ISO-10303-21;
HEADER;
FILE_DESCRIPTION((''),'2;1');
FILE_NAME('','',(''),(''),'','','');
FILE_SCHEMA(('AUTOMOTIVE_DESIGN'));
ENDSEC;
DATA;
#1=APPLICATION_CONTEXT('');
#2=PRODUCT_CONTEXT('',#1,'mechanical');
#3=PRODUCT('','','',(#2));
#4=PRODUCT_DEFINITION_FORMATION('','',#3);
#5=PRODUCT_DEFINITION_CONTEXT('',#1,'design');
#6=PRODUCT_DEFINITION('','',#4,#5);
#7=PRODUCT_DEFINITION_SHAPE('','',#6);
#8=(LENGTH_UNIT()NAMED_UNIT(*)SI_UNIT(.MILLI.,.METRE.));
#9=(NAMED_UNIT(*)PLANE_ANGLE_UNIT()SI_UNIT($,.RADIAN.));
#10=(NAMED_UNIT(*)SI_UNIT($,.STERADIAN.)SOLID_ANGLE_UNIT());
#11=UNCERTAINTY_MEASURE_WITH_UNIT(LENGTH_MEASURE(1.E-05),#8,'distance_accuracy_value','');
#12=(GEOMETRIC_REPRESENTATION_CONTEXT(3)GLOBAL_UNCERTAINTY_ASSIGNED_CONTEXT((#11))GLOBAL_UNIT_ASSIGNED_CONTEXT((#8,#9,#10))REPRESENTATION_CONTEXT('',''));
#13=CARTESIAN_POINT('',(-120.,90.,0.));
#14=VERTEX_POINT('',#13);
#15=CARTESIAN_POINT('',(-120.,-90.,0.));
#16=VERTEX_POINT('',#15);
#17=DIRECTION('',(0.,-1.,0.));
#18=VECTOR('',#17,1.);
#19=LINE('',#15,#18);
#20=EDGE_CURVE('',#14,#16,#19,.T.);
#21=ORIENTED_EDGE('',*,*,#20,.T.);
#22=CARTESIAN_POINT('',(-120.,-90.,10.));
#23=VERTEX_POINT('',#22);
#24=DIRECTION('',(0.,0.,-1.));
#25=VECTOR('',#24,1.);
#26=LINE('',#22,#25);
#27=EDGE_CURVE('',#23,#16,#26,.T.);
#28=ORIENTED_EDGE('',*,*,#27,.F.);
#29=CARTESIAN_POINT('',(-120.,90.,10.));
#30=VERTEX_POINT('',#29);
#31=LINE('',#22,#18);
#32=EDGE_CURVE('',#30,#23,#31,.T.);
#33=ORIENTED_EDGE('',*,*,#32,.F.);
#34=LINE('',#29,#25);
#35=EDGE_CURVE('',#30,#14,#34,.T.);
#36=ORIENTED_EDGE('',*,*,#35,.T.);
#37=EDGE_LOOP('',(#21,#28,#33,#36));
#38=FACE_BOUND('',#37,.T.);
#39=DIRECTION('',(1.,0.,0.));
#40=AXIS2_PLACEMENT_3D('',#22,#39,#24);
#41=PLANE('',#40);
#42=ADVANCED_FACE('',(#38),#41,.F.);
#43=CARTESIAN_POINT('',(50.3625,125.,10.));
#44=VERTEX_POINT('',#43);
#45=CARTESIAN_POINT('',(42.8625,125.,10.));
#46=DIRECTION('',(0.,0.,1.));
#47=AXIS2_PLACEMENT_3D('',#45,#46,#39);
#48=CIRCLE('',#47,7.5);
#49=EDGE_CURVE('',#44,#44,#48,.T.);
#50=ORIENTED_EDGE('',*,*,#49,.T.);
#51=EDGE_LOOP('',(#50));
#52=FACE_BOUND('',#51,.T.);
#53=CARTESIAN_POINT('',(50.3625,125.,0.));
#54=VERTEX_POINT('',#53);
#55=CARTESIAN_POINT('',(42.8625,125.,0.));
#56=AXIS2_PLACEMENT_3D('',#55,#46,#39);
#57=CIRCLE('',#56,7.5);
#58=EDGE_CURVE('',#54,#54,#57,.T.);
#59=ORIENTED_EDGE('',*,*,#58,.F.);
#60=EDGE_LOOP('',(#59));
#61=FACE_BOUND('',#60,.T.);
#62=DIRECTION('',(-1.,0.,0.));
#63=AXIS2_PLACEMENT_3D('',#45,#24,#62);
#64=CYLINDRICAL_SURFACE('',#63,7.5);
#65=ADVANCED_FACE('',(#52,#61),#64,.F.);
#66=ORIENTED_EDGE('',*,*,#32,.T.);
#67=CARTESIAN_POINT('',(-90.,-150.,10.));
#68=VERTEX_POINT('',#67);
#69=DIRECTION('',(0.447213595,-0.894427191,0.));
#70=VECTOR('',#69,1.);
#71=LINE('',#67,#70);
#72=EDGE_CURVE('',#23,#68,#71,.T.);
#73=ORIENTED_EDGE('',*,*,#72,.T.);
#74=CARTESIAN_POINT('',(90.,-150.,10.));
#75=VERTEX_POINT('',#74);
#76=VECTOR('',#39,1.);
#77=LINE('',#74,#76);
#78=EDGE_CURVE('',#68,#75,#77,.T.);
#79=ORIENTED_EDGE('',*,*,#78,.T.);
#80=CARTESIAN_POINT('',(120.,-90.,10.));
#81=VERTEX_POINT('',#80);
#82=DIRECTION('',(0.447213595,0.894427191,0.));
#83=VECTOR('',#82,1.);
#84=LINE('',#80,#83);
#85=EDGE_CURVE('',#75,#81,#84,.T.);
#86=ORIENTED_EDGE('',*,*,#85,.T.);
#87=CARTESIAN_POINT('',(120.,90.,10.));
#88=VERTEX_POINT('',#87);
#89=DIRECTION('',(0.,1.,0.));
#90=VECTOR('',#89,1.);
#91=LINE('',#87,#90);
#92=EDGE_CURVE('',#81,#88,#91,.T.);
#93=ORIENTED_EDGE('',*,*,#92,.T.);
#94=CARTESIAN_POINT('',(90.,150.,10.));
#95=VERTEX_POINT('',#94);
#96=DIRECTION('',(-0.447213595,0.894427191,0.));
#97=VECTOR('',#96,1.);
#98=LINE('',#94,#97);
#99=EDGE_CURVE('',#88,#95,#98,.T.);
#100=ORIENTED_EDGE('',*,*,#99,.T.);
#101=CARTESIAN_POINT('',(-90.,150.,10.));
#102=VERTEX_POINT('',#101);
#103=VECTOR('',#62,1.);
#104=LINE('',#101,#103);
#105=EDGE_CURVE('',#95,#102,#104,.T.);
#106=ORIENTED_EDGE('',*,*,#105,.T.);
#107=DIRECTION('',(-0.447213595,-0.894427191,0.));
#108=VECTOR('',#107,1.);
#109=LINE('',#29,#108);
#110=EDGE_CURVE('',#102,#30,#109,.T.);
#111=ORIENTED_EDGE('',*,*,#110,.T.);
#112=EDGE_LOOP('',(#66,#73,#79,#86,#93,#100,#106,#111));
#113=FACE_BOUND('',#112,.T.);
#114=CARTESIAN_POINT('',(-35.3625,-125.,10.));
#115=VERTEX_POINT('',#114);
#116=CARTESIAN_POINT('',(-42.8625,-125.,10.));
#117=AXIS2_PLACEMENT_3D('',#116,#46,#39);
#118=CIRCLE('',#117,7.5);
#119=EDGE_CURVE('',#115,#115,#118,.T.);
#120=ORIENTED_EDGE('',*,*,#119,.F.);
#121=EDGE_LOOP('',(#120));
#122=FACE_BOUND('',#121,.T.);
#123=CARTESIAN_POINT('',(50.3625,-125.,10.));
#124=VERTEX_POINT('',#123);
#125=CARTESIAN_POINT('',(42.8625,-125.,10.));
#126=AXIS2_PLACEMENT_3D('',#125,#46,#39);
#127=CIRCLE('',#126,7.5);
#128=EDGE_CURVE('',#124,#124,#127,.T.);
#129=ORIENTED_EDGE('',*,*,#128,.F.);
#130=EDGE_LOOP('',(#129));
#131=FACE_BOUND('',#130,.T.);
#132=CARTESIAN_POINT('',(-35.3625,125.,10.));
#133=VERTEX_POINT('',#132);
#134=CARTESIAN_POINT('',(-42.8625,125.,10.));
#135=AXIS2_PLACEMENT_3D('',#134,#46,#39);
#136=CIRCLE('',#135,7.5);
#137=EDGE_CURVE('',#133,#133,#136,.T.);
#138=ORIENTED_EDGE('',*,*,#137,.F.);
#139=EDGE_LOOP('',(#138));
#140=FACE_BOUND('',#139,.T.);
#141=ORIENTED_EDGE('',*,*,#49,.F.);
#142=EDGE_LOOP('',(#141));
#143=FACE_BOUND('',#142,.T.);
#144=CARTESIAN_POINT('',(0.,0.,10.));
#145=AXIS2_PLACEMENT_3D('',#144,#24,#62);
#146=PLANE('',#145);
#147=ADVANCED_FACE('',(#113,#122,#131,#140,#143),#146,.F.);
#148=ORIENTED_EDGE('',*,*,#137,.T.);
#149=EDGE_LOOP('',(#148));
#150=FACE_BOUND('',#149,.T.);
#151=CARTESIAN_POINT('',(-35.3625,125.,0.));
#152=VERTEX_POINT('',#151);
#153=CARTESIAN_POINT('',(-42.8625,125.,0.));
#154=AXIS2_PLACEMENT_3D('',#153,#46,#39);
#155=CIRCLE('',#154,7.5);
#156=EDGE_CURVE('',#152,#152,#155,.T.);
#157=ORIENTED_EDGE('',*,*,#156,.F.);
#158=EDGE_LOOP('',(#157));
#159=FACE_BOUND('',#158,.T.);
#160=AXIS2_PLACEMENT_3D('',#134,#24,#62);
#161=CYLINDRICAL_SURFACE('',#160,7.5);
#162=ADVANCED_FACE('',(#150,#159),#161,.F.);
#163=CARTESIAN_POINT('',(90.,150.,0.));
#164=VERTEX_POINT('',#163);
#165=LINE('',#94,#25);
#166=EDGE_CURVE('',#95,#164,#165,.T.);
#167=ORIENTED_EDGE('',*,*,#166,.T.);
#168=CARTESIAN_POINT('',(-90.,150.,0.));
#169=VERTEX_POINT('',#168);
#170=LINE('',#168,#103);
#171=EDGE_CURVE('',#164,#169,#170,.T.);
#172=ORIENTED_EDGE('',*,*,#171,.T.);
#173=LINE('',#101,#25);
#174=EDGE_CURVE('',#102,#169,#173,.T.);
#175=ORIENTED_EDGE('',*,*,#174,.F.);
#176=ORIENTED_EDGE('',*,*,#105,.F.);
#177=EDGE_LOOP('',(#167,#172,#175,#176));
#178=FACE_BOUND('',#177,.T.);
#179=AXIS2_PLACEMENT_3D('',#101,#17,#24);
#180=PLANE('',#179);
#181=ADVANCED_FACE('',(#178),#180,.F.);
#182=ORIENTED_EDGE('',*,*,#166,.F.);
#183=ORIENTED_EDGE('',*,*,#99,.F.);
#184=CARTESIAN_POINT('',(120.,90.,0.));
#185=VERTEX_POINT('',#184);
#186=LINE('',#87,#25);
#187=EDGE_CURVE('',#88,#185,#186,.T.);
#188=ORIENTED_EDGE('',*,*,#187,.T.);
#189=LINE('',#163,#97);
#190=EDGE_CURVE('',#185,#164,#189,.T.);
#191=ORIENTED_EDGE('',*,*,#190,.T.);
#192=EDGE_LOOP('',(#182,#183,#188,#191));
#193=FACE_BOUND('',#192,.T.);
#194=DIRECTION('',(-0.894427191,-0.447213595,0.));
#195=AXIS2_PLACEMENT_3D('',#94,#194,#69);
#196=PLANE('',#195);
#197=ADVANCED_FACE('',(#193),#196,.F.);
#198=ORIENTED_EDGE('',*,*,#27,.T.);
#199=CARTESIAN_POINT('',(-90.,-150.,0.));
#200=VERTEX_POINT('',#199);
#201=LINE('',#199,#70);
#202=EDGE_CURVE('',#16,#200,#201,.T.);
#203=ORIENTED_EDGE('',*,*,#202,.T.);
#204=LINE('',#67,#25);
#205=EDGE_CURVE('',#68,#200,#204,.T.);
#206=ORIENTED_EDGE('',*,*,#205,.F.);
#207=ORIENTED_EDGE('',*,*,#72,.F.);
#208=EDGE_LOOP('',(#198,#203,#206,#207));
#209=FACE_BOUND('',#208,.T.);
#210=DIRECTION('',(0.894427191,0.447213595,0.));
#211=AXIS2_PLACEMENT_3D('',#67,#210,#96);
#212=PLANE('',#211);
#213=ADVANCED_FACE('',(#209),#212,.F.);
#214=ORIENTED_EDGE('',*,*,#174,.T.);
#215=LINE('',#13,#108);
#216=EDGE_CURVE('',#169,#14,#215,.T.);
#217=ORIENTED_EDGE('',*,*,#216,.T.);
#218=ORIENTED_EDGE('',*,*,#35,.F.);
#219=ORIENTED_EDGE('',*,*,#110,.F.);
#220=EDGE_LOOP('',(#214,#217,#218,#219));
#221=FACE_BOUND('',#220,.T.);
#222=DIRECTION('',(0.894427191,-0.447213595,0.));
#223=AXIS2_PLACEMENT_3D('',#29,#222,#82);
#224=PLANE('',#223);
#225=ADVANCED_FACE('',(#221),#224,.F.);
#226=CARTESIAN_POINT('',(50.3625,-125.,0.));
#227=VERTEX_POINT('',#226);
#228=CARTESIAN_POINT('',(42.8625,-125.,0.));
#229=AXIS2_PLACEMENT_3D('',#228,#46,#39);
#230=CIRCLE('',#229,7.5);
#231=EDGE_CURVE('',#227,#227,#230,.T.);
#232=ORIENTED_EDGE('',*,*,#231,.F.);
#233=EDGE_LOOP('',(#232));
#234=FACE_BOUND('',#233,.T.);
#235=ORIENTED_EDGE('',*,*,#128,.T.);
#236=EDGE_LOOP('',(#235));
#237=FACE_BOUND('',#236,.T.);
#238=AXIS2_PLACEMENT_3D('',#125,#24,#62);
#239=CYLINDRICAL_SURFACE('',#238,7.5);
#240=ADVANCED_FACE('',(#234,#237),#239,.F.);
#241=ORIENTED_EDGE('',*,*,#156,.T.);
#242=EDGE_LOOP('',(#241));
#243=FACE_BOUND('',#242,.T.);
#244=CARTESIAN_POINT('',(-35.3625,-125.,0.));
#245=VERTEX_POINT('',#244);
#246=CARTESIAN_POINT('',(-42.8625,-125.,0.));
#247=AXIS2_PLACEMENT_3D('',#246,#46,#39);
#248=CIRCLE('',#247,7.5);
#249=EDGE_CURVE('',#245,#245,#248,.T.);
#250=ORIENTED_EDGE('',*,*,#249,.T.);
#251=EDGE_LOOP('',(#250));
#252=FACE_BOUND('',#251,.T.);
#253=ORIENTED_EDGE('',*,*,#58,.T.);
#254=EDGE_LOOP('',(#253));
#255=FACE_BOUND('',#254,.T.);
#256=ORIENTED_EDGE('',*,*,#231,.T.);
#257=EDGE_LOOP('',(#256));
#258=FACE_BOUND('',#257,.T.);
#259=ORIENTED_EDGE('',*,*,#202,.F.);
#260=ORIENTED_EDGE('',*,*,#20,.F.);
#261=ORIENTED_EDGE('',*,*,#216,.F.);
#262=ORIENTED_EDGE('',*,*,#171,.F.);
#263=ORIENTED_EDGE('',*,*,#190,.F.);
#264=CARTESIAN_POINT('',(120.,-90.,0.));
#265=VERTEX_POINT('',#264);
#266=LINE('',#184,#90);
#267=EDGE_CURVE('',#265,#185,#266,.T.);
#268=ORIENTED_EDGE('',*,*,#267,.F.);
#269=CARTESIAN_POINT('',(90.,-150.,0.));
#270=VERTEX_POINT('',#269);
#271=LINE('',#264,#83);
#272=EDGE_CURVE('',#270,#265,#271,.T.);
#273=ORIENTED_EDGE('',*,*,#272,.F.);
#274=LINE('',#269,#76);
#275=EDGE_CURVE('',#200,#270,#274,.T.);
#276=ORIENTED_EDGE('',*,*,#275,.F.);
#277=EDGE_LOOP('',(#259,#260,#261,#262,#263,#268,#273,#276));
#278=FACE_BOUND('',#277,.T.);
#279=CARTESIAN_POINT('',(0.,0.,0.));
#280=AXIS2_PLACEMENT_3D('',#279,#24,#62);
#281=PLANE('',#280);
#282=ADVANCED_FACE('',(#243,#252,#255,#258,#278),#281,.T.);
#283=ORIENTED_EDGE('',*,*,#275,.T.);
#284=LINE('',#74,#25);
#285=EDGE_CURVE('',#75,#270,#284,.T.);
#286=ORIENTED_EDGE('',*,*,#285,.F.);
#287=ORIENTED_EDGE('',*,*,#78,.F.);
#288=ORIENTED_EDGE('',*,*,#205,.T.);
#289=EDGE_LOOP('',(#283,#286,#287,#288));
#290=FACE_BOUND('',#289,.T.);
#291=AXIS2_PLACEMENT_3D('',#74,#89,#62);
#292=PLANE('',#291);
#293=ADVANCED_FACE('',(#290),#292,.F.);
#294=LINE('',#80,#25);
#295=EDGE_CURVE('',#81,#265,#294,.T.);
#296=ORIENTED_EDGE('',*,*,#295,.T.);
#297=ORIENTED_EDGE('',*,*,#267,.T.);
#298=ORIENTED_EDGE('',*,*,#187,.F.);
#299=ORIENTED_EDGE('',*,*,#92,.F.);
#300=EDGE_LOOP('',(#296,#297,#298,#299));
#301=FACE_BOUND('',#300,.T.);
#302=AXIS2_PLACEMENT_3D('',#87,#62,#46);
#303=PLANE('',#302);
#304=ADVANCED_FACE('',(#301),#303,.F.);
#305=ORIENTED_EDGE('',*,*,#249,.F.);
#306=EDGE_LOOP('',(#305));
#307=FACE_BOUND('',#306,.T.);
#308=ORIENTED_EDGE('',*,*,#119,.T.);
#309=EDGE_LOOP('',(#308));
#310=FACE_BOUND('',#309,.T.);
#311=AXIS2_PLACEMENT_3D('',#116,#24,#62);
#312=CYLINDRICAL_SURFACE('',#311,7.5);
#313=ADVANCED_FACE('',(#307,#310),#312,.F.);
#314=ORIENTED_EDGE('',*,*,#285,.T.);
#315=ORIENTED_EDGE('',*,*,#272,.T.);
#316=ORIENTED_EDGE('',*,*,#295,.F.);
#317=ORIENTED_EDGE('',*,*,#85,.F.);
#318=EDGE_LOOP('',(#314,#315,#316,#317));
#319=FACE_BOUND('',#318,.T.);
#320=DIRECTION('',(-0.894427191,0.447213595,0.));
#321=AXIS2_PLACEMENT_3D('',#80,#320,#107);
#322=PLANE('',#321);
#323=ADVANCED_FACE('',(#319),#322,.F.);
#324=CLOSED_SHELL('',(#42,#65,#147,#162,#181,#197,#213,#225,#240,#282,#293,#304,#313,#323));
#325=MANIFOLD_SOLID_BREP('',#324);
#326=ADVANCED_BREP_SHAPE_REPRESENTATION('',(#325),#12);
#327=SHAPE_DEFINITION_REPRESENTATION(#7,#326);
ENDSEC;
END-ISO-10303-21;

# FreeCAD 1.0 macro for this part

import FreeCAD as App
import Part
import Sketcher

V = App.Vector
Q = App.Units.Quantity


def add_polygon(sketch, points):
    """Adds a closed chain of lines whose ends are joined by coincident constraints."""
    first, n = sketch.GeometryCount, len(points)
    for a, b in zip(points, points[1:] + points[:1]):
        sketch.addGeometry(Part.LineSegment(App.Vector(*a, 0), App.Vector(*b, 0)), False)
    for i in range(n):
        sketch.addConstraint(Sketcher.Constraint("Coincident", first + i, 2, first + (i + 1) % n, 1))

doc = App.newDocument("Part")
params = doc.addObject("Spreadsheet::Sheet", "Params")
for row, (alias, value) in enumerate([
    ("sketch1_diameter", "15 mm"),
    ("sketch1_width", "180 mm"),
    ("pad1_length", "10 mm"),
], start=1):
    params.set(f"A{row}", alias)
    params.set(f"B{row}", "=" + value)
    params.setAlias(f"B{row}", alias)

body = doc.addObject("PartDesign::Body", "Body")

# Sketch on XY plane
sketch1 = body.newObject("Sketcher::SketchObject", "Sketch")
sketch1.AttachmentSupport = (doc.getObject("XY_Plane"), [""])
sketch1.MapMode = "FlatFace"
add_polygon(sketch1, [(90, 150), (-90, 150), (-120, 90), (-120, -90), (-90, -150), (90, -150), (120, -90), (120, 90)])  # lines 0-7
sketch1.addGeometry(Part.Circle(V(43, -125, 0), V(0, 0, 1), 8), False)  # 8
sketch1.addGeometry(Part.Circle(V(-43, -125, 0), V(0, 0, 1), 8), False)  # 9
sketch1.addGeometry(Part.Circle(V(43, 125, 0), V(0, 0, 1), 8), False)  # 10
sketch1.addGeometry(Part.Circle(V(-43, 125, 0), V(0, 0, 1), 8), False)  # 11
sketch1.addConstraint(Sketcher.Constraint("Horizontal", 0))
sketch1.addConstraint(Sketcher.Constraint("Vertical", 2))
sketch1.addConstraint(Sketcher.Constraint("Horizontal", 4))
sketch1.addConstraint(Sketcher.Constraint("Vertical", 6))
sketch1.addConstraint(Sketcher.Constraint("Equal", 8, 9))
sketch1.addConstraint(Sketcher.Constraint("Equal", 9, 10))
sketch1.addConstraint(Sketcher.Constraint("Equal", 10, 11))
sketch1.addConstraint(Sketcher.Constraint("Symmetric", 9, 3, 10, 3, -1, 1))
sketch1.addConstraint(Sketcher.Constraint("Symmetric", 8, 3, 11, 3, -1, 1))
sketch1.addConstraint(Sketcher.Constraint("Symmetric", 0, 2, 4, 2, -1, 1))
sketch1.addConstraint(Sketcher.Constraint("Symmetric", 1, 2, 5, 2, -1, 1))
sketch1.addConstraint(Sketcher.Constraint("Symmetric", 8, 3, 9, 3, -2))
sketch1.addConstraint(Sketcher.Constraint("Parallel", 3, 7))
sketch1.addConstraint(Sketcher.Constraint("Horizontal", 2, 2, 5, 2))
sketch1.addConstraint(Sketcher.Constraint("Horizontal", 1, 2, 6, 2))
sketch1.addConstraint(Sketcher.Constraint("Vertical", 0, 2, 3, 2))
sketch1.addConstraint(Sketcher.Constraint("Equal", 4, 2))
sketch1.addConstraint(Sketcher.Constraint("Diameter", 8, Q("15 mm")))
sketch1.addConstraint(Sketcher.Constraint("DistanceX", 0, 2, 0, 1, Q("180 mm")))
sketch1.addConstraint(Sketcher.Constraint("DistanceY", 8, 3, -1, 1, Q("125 mm")))
sketch1.addConstraint(Sketcher.Constraint("DistanceY", -1, 1, 0, 2, Q("150 mm")))
sketch1.addConstraint(Sketcher.Constraint("DistanceX", 1, 2, -1, 1, Q("120 mm")))
sketch1.addConstraint(Sketcher.Constraint("DistanceX", 9, 3, 8, 3, Q("85.725 mm")))
sketch1.setExpression("Constraints[25]", "Params.sketch1_diameter")
sketch1.setExpression("Constraints[26]", "Params.sketch1_width")
pad1 = body.newObject("PartDesign::Pad", "Pad")
pad1.Profile = sketch1
pad1.setExpression("Length", "Params.pad1_length")

doc.recompute()
